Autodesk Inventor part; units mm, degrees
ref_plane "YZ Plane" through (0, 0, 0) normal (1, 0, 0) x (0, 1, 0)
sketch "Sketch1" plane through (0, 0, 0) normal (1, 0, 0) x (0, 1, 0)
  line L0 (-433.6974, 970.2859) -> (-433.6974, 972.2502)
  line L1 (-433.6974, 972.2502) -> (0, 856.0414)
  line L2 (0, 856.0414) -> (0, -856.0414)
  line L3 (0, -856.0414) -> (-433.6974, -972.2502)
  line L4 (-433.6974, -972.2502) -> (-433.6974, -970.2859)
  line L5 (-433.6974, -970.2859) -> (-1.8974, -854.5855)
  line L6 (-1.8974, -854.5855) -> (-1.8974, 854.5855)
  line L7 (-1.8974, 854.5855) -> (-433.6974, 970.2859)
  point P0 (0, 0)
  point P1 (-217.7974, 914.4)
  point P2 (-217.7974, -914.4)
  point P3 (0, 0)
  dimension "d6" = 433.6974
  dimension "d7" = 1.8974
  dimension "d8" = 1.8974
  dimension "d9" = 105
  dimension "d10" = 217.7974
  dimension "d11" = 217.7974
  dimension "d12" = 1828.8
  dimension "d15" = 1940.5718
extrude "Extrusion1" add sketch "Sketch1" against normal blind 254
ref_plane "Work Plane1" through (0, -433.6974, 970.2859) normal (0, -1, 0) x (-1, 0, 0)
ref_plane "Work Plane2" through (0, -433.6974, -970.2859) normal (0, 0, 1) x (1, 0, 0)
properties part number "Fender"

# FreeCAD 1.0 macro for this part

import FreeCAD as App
import Part
import Sketcher
Q = App.Units.Quantity


def add_polygon(sketch, points):
    """Adds a closed chain of lines whose ends are joined by coincident constraints."""
    first, n = sketch.GeometryCount, len(points)
    for a, b in zip(points, points[1:] + points[:1]):
        sketch.addGeometry(Part.LineSegment(App.Vector(*a, 0), App.Vector(*b, 0)), False)
    for i in range(n):
        sketch.addConstraint(Sketcher.Constraint("Coincident", first + i, 2, first + (i + 1) % n, 1))

doc = App.newDocument("Part")
body = doc.addObject("PartDesign::Body", "Body")

# Sketch on YZ plane
sketch1 = body.newObject("Sketcher::SketchObject", "Sketch")
sketch1.AttachmentSupport = (doc.getObject("YZ_Plane"), [""])
sketch1.MapMode = "FlatFace"
add_polygon(sketch1, [(-433.6974, 972.2502), (-433.6974, 970.2859), (-1.8974, 854.5855), (-1.8974, -854.5855), (-433.6974, -970.2859), (-433.6974, -972.2502), (0, -856.0414), (0, 856.0414)])  # lines 0-7
sketch1.addConstraint([
    Sketcher.Constraint("Vertical", 0),
    Sketcher.Constraint("Vertical", 2),
    Sketcher.Constraint("Vertical", 4),
    Sketcher.Constraint("Vertical", 6),
    Sketcher.Constraint("Symmetric", 5, 2, 6, 2, -1, 1),
    Sketcher.Constraint("Symmetric", 0, 2, 3, 2, -1),
    Sketcher.Constraint("Parallel", 3, 5),
    Sketcher.Constraint("Parallel", 1, 7),
    Sketcher.Constraint("Equal", 0, 4),
    Sketcher.Constraint("Angle", 1, Q("-15 deg")),
    Sketcher.Constraint("DistanceX", 0, 2, 1, 2, Q("17 in")),
    Sketcher.Constraint("DistanceX", 0, 2, -1, 1, Q("17.0747 in")),
    Sketcher.Constraint("DistanceY", 3, 2, 0, 2, Q("1940.5718 mm")),
    Sketcher.Constraint("DistanceY", 0, 2, 0, 1, Q("1.9643 mm")),
])
pad1 = body.newObject("PartDesign::Pad", "Pad")
pad1.Profile = sketch1
pad1.Length = Q("10 in")
pad1.Reversed = True

doc.recompute()
